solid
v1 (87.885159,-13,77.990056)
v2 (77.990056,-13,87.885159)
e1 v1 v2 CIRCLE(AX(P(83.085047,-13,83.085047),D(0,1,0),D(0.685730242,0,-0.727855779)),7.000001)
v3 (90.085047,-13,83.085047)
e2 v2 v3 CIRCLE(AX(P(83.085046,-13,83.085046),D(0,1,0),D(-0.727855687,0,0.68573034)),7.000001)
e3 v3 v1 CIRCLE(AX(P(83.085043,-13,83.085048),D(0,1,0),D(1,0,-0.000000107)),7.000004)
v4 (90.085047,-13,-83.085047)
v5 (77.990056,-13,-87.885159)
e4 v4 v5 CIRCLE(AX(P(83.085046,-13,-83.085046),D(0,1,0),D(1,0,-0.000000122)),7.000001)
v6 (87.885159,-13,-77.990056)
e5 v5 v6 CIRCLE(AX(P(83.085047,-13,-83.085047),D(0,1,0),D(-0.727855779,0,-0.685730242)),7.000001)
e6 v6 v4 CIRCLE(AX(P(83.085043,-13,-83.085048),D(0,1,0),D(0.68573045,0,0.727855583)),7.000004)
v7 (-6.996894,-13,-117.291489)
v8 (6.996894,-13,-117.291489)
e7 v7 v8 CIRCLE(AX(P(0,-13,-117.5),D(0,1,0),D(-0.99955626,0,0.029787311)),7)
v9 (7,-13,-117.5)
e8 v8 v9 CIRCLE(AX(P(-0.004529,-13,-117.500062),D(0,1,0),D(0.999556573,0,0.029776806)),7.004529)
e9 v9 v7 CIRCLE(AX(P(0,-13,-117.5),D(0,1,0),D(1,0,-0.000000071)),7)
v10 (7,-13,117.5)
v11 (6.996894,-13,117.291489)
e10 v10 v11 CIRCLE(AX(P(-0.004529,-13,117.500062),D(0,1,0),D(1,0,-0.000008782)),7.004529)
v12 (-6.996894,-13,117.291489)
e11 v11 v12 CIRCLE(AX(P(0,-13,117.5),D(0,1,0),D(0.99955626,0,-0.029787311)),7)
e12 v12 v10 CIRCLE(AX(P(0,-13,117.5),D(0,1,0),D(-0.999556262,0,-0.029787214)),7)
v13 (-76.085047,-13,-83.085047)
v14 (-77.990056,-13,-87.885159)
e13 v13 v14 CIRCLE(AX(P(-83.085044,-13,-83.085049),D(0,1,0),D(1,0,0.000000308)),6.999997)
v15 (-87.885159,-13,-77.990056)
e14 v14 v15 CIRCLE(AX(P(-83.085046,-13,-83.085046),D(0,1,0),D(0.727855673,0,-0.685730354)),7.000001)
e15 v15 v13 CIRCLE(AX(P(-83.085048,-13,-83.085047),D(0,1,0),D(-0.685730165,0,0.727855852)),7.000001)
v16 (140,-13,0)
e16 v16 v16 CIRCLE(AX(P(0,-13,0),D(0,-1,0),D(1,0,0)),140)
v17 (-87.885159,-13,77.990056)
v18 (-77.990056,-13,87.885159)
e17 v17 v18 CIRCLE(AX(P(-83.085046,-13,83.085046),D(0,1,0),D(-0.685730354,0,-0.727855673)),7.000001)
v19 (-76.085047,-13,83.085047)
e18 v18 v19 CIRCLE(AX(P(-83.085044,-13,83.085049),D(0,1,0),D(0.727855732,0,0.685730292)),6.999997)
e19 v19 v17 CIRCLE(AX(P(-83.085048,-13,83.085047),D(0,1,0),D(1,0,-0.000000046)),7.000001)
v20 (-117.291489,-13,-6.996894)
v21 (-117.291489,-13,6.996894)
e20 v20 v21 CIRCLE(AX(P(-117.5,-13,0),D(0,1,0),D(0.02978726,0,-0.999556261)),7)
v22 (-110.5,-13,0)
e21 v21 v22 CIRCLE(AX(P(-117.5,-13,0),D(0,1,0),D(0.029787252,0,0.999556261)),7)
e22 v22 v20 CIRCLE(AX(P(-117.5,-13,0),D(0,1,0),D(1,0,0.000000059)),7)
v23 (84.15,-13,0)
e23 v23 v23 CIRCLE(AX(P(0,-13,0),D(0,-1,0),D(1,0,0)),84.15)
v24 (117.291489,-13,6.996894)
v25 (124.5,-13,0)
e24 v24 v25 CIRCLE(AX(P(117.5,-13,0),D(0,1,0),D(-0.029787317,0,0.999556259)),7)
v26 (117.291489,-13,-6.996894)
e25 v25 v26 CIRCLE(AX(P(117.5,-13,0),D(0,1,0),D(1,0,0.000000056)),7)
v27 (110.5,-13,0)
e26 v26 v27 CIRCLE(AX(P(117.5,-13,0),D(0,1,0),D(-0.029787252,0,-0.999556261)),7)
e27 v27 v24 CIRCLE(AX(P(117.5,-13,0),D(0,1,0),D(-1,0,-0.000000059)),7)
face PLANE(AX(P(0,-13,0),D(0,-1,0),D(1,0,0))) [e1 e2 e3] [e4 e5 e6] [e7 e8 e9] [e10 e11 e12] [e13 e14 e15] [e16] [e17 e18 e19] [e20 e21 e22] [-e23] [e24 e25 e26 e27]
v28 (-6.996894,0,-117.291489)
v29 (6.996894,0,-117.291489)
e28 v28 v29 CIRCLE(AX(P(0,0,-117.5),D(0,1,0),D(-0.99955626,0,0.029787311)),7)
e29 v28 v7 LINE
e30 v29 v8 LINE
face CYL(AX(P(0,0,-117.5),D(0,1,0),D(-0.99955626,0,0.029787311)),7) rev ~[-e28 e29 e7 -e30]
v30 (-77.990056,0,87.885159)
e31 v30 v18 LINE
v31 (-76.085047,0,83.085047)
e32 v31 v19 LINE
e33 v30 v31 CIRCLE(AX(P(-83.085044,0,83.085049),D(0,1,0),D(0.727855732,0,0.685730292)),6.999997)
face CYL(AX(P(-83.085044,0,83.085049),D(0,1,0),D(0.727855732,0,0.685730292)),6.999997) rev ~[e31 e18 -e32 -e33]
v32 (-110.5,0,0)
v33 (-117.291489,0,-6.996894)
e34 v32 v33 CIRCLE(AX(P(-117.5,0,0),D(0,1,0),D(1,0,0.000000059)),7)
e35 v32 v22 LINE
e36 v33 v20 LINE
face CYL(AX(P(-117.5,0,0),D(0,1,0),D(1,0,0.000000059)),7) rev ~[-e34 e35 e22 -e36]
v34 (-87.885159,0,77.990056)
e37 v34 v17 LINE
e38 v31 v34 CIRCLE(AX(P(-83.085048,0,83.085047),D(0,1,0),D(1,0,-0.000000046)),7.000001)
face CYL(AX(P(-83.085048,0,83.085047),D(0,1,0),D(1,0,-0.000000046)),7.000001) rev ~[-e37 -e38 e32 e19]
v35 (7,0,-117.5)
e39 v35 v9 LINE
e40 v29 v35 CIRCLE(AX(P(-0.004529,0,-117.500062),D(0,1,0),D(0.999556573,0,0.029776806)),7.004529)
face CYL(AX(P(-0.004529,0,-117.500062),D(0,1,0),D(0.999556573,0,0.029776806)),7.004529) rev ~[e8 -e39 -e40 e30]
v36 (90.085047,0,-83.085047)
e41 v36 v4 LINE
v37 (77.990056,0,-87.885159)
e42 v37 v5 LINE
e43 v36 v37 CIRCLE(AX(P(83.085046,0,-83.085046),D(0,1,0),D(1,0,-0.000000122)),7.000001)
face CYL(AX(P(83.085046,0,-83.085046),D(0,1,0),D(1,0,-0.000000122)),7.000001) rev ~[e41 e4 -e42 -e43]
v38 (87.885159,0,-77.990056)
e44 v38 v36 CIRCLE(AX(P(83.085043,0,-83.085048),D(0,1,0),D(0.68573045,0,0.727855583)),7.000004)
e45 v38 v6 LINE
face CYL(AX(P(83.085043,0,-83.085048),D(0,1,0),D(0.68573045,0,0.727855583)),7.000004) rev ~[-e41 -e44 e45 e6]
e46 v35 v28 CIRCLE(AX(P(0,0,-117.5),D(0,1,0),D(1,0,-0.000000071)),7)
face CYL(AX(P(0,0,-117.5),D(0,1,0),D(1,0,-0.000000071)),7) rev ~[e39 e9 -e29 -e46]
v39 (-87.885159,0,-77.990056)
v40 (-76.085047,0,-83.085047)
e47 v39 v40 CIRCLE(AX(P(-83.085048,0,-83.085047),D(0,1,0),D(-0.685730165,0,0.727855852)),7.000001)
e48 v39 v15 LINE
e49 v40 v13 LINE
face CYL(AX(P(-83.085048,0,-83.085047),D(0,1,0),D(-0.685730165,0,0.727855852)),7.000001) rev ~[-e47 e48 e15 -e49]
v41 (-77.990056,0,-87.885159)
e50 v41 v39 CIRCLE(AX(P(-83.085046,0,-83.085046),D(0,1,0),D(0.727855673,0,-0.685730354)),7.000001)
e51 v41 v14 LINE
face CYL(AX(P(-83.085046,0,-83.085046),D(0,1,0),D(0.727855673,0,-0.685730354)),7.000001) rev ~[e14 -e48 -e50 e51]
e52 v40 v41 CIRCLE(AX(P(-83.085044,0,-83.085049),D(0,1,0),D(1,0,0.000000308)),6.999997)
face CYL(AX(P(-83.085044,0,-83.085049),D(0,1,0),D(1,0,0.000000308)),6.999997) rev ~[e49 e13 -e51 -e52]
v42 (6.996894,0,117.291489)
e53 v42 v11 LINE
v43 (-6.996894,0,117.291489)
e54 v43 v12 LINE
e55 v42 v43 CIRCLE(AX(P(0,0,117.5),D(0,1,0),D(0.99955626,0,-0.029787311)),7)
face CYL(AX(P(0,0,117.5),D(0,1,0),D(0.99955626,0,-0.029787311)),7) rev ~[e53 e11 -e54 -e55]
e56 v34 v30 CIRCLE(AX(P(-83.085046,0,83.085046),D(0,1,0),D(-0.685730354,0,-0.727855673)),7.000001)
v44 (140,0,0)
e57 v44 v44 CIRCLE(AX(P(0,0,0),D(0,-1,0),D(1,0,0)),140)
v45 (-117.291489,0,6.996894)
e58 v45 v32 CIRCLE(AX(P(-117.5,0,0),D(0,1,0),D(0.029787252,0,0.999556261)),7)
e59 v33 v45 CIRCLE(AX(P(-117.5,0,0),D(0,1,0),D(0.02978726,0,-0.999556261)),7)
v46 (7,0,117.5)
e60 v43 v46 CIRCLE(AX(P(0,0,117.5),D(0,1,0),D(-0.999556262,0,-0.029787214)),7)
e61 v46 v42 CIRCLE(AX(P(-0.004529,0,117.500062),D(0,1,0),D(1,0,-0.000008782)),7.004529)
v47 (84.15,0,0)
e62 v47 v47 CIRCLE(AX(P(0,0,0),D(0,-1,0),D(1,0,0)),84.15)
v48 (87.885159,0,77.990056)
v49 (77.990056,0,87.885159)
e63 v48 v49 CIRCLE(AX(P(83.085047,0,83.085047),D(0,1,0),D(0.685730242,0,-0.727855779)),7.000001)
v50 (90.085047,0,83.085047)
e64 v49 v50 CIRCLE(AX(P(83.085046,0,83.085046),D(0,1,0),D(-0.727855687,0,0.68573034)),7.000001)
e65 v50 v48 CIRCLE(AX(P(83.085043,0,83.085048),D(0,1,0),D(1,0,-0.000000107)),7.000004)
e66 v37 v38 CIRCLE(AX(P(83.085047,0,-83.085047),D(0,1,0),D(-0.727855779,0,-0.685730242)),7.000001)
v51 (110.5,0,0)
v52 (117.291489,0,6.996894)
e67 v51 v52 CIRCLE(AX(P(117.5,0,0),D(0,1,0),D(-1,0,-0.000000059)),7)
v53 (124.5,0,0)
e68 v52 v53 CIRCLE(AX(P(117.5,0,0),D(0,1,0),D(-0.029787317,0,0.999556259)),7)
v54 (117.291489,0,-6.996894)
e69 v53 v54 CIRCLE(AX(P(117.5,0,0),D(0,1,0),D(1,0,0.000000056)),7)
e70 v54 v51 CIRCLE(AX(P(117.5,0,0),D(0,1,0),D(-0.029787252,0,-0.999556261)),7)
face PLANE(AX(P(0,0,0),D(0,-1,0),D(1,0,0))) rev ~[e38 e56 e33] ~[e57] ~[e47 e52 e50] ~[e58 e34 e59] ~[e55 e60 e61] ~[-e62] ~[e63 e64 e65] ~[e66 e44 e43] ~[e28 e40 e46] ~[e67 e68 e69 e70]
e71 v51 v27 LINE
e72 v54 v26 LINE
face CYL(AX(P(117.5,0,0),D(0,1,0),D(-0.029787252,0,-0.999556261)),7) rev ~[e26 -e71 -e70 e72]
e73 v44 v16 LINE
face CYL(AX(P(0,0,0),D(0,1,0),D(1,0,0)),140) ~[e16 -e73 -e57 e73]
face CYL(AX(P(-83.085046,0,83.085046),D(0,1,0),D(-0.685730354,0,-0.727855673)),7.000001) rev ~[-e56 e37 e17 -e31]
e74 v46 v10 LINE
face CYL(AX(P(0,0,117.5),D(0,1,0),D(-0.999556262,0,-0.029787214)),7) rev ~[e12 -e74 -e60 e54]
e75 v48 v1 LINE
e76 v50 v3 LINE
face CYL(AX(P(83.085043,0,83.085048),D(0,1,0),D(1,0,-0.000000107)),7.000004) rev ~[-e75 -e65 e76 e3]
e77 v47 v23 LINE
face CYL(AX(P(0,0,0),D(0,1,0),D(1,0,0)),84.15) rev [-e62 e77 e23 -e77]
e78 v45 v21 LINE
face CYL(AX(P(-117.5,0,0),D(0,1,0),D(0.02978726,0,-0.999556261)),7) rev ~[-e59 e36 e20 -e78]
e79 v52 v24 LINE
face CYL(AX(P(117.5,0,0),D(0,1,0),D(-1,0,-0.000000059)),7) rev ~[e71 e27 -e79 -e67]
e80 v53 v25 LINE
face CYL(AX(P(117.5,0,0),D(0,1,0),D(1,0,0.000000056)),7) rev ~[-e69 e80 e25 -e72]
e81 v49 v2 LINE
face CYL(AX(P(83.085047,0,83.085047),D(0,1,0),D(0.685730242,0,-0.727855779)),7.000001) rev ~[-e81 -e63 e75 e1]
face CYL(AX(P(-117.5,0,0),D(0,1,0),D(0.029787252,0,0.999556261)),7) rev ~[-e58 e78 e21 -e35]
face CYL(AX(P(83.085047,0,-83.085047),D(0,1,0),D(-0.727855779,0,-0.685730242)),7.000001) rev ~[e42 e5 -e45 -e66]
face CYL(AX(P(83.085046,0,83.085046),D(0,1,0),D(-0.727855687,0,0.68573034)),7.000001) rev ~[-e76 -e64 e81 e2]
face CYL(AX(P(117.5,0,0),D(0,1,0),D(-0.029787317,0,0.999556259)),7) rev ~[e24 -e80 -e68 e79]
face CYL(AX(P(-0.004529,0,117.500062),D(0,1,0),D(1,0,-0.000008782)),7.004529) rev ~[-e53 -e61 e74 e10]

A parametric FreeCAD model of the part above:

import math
import FreeCAD as App
import Part
import Sketcher
from FreeCAD import Vector

doc = App.newDocument("Part")
body = doc.addObject("PartDesign::Body", "Body")

# Sketch on XZ plane
sketch1 = doc.addObject("Sketcher::SketchObject", "Sketch")
body.addObject(sketch1)
sketch1.AttachmentSupport = (doc.XZ_Plane, [""])
sketch1.MapMode = "FlatFace"
sketch1.addGeometry([
    Part.Circle(Vector(0, 0, 0), Vector(0, 0, 1), 140),  # 0
    Part.ArcOfCircle(Part.Circle(Vector(-83.09, -83.09, 0), Vector(0, 0, 1), 7), math.radians(133), math.radians(317)),  # 1
    Part.ArcOfCircle(Part.Circle(Vector(-83.09, -83.09, 0), Vector(0, 0, 1), 7), math.radians(0), math.radians(133)),  # 2
    Part.ArcOfCircle(Part.Circle(Vector(-83.09, -83.09, 0), Vector(0, 0, 1), 7), math.radians(-43), math.radians(0)),  # 3
    Part.ArcOfCircle(Part.Circle(Vector(0, -117.5, 0), Vector(0, 0, 1), 7), math.radians(178), math.radians(360)),  # 4
    Part.ArcOfCircle(Part.Circle(Vector(0, -117.5, 0), Vector(0, 0, 1), 7), math.radians(2), math.radians(178)),  # 5
    Part.ArcOfCircle(Part.Circle(Vector(0, -117.5, 0), Vector(0, 0, 1), 7), math.radians(0), math.radians(1.71)),  # 6
    Part.ArcOfCircle(Part.Circle(Vector(83.09, -83.09, 0), Vector(0, 0, 1), 7), math.radians(-137), math.radians(0)),  # 7
    Part.ArcOfCircle(Part.Circle(Vector(83.09, -83.09, 0), Vector(0, 0, 1), 7), math.radians(47), math.radians(223)),  # 8
    Part.ArcOfCircle(Part.Circle(Vector(83.09, -83.09, 0), Vector(0, 0, 1), 7), math.radians(0), math.radians(47)),  # 9
    Part.ArcOfCircle(Part.Circle(Vector(-117.5, 0, 0), Vector(0, 0, 1), 7), math.radians(88), math.radians(272)),  # 10
    Part.ArcOfCircle(Part.Circle(Vector(-117.5, 0, 0), Vector(0, 0, 1), 7), math.radians(0), math.radians(88)),  # 11
    Part.ArcOfCircle(Part.Circle(Vector(-117.5, 0, 0), Vector(0, 0, 1), 7), math.radians(-88), math.radians(0)),  # 12
    Part.ArcOfCircle(Part.Circle(Vector(-83.09, 83.09, 0), Vector(0, 0, 1), 7), math.radians(43), math.radians(227)),  # 13
    Part.ArcOfCircle(Part.Circle(Vector(-83.09, 83.09, 0), Vector(0, 0, 1), 7), math.radians(0), math.radians(43)),  # 14
    Part.ArcOfCircle(Part.Circle(Vector(-83.09, 83.09, 0), Vector(0, 0, 1), 7), math.radians(-133), math.radians(0)),  # 15
    Part.ArcOfCircle(Part.Circle(Vector(0, 117.5, 0), Vector(0, 0, 1), 7), math.radians(-1.71), math.radians(0)),  # 16
    Part.ArcOfCircle(Part.Circle(Vector(0, 117.5, 0), Vector(0, 0, 1), 7), math.radians(-178), math.radians(-2)),  # 17
    Part.ArcOfCircle(Part.Circle(Vector(0, 117.5, 0), Vector(0, 0, 1), 7), math.radians(0), math.radians(182)),  # 18
    Part.Circle(Vector(0, 0, 0), Vector(0, 0, 1), 84.15),  # 19
    Part.ArcOfCircle(Part.Circle(Vector(117.5, 0, 0), Vector(0, 0, 1), 7), math.radians(-92), math.radians(0)),  # 20
    Part.ArcOfCircle(Part.Circle(Vector(117.5, 0, 0), Vector(0, 0, 1), 7), math.radians(180), math.radians(268)),  # 21
    Part.ArcOfCircle(Part.Circle(Vector(117.5, 0, 0), Vector(0, 0, 1), 7), math.radians(92), math.radians(180)),  # 22
    Part.ArcOfCircle(Part.Circle(Vector(117.5, 0, 0), Vector(0, 0, 1), 7), math.radians(0), math.radians(92)),  # 23
    Part.ArcOfCircle(Part.Circle(Vector(83.09, 83.09, 0), Vector(0, 0, 1), 7), math.radians(-47), math.radians(0)),  # 24
    Part.ArcOfCircle(Part.Circle(Vector(83.09, 83.09, 0), Vector(0, 0, 1), 7), math.radians(137), math.radians(313)),  # 25
    Part.ArcOfCircle(Part.Circle(Vector(83.09, 83.09, 0), Vector(0, 0, 1), 7), math.radians(0), math.radians(137)),  # 26
], False)
sketch1.addConstraint([
    Sketcher.Constraint("Tangent", 1, 1, 2, 2),
    Sketcher.Constraint("Tangent", 2, 1, 3, 2),
    Sketcher.Constraint("Tangent", 3, 1, 1, 2),
    Sketcher.Constraint("Tangent", 4, 1, 5, 2),
    Sketcher.Constraint("Coincident", 5, 1, 6, 2),
    Sketcher.Constraint("Coincident", 6, 1, 4, 2),
    Sketcher.Constraint("Tangent", 7, 1, 8, 2),
    Sketcher.Constraint("Tangent", 8, 1, 9, 2),
    Sketcher.Constraint("Tangent", 9, 1, 7, 2),
    Sketcher.Constraint("Tangent", 10, 1, 11, 2),
    Sketcher.Constraint("Tangent", 11, 1, 12, 2),
    Sketcher.Constraint("Tangent", 12, 1, 10, 2),
    Sketcher.Constraint("Tangent", 13, 1, 14, 2),
    Sketcher.Constraint("Tangent", 14, 1, 15, 2),
    Sketcher.Constraint("Tangent", 15, 1, 13, 2),
    Sketcher.Constraint("Coincident", 16, 1, 17, 2),
    Sketcher.Constraint("Tangent", 17, 1, 18, 2),
    Sketcher.Constraint("Coincident", 18, 1, 16, 2),
    Sketcher.Constraint("Tangent", 20, 1, 21, 2),
    Sketcher.Constraint("Tangent", 21, 1, 22, 2),
    Sketcher.Constraint("Tangent", 22, 1, 23, 2),
    Sketcher.Constraint("Tangent", 23, 1, 20, 2),
    Sketcher.Constraint("Tangent", 24, 1, 25, 2),
    Sketcher.Constraint("Tangent", 25, 1, 26, 2),
    Sketcher.Constraint("Tangent", 26, 1, 24, 2),
    Sketcher.Constraint("Coincident", 0, 3, -1, 1),
    Sketcher.Constraint("Coincident", 19, 3, -1, 1),
    Sketcher.Constraint("Equal", 2, 4),
    Sketcher.Constraint("Equal", 4, 5),
    Sketcher.Constraint("Equal", 5, 7),
    Sketcher.Constraint("Equal", 8, 10),
    Sketcher.Constraint("Equal", 12, 13),
    Sketcher.Constraint("Equal", 6, 16),
    Sketcher.Constraint("Equal", 15, 17),
    Sketcher.Constraint("Equal", 17, 18),
    Sketcher.Constraint("Equal", 18, 20),
    Sketcher.Constraint("Equal", 20, 21),
    Sketcher.Constraint("Equal", 9, 24),
    Sketcher.Constraint("Symmetric", 7, 3, 13, 3, -1, 1),
    Sketcher.Constraint("Symmetric", 4, 3, 17, 3, -1, 1),
    Sketcher.Constraint("Symmetric", 10, 3, 20, 3, -1, 1),
    Sketcher.Constraint("Symmetric", 1, 3, 24, 3, -1, 1),
    Sketcher.Constraint("Symmetric", 1, 3, 7, 3, -2),
    Sketcher.Constraint("Symmetric", 4, 1, 5, 1, -2),
    Sketcher.Constraint("Symmetric", 12, 1, 20, 1, -2),
    Sketcher.Constraint("PointOnObject", 11, 1, -1),
    Sketcher.Constraint("PointOnObject", 21, 1, -1),
    Sketcher.Constraint("PointOnObject", 23, 1, -1),
    Sketcher.Constraint("Horizontal", 9, 3, 2, 1),
    Sketcher.Constraint("Horizontal", 5, 3, 6, 1),
    Sketcher.Constraint("Horizontal", 3, 1, 7, 1),
    Sketcher.Constraint("Horizontal", 1, 1, 8, 1),
    Sketcher.Constraint("Horizontal", 2, 1, 9, 1),
    Sketcher.Constraint("Horizontal", 26, 3, 14, 1),
    Sketcher.Constraint("Horizontal", 16, 1, 17, 1),
    Sketcher.Constraint("Horizontal", 17, 3, 18, 1),
    Sketcher.Constraint("Horizontal", 10, 1, 22, 1),
    Sketcher.Constraint("Horizontal", 15, 1, 24, 1),
    Sketcher.Constraint("Horizontal", 13, 1, 25, 1),
    Sketcher.Constraint("Horizontal", 14, 1, 26, 1),
    Sketcher.Constraint("Vertical", 10, 1, 12, 1),
    Sketcher.Constraint("Vertical", 3, 1, 13, 1),
    Sketcher.Constraint("Vertical", 1, 1, 15, 1),
    Sketcher.Constraint("Vertical", 5, 1, 16, 1),
    Sketcher.Constraint("Diameter", 0, 280.0),
    Sketcher.Constraint("Radius", 1, 7.000001),
    Sketcher.Constraint("Diameter", 19, 168.3),
    Sketcher.Constraint("DistanceY", 4, 3, -1, 1, 117.5),
    Sketcher.Constraint("DistanceX", 10, 3, -1, 1, 117.5),
    Sketcher.Constraint("Radius", 6, 7.004529),
    Sketcher.Constraint("DistanceY", 3, 3, -1, 1, 83.085049),
    Sketcher.Constraint("DistanceX", 1, 1, -1, 1, 87.885159),
    Sketcher.Constraint("DistanceY", 3, 1, -1, 1, 87.885159),
    Sketcher.Constraint("DistanceY", 4, 1, -1, 1, 117.291489),
    Sketcher.Constraint("DistanceX", 10, 1, -1, 1, 117.291489),
    Sketcher.Constraint("DistanceX", 2, 3, 6, 3, 83.080518),
])
pad1 = doc.addObject("PartDesign::Pad", "Pad")
body.addObject(pad1)
pad1.Profile = sketch1
pad1.Length = 13

doc.recompute()
